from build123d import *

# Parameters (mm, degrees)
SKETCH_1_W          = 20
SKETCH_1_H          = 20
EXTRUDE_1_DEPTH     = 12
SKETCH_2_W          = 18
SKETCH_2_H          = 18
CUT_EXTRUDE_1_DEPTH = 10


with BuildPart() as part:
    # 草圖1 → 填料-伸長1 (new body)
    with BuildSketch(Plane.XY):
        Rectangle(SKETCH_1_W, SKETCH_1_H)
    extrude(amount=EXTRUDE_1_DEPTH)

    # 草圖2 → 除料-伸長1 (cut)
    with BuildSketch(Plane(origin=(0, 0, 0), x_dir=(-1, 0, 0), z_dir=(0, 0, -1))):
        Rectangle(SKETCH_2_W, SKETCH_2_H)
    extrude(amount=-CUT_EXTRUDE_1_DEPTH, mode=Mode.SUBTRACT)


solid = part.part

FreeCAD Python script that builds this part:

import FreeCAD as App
import Part
import Sketcher

V = App.Vector

doc = App.newDocument("Part")
params = doc.addObject("Spreadsheet::Sheet", "Params")
for row, (alias, value) in enumerate([
    ("sketch1_width", "20 mm"),
    ("pad1_length", "12 mm"),
    ("sketch2_width", "18 mm"),
    ("pocket1_length", "10 mm"),
], start=1):
    params.set(f"A{row}", alias)
    params.set(f"B{row}", "=" + value)
    params.setAlias(f"B{row}", alias)

body = doc.addObject("PartDesign::Body", "Body")

# Sketch on XY plane
sketch1 = doc.addObject("Sketcher::SketchObject", "Sketch")
body.addObject(sketch1)
sketch1.AttachmentSupport = (doc.XY_Plane, [""])
sketch1.MapMode = "FlatFace"
sketch1.addGeometry([
    Part.LineSegment(V(-10, 10, 0), V(-10, -10, 0)),
    Part.LineSegment(V(-10, -10, 0), V(10, -10, 0)),
    Part.LineSegment(V(10, -10, 0), V(10, 10, 0)),
    Part.LineSegment(V(10, 10, 0), V(-10, 10, 0)),
], False)
sketch1.addConstraint([
    Sketcher.Constraint("Coincident", 0, 2, 1, 1),
    Sketcher.Constraint("Coincident", 1, 2, 2, 1),
    Sketcher.Constraint("Coincident", 2, 2, 3, 1),
    Sketcher.Constraint("Coincident", 3, 2, 0, 1),
    Sketcher.Constraint("Vertical", 0),
    Sketcher.Constraint("Horizontal", 1),
    Sketcher.Constraint("Vertical", 2),
    Sketcher.Constraint("Horizontal", 3),
    Sketcher.Constraint("Symmetric", 0, 2, 2, 2, -1, 1),
    Sketcher.Constraint("Equal", 3, 0),
    Sketcher.Constraint("DistanceX", 1, 1, 1, 2, 20.0),
])
sketch1.setExpression("Constraints[10]", "Params.sketch1_width")
pad1 = doc.addObject("PartDesign::Pad", "Pad")
body.addObject(pad1)
pad1.Profile = sketch1
pad1.setExpression("Length", "Params.pad1_length")

# Sketch on XY plane
sketch2 = doc.addObject("Sketcher::SketchObject", "Sketch001")
body.addObject(sketch2)
sketch2.AttachmentSupport = (doc.XY_Plane, [""])
sketch2.MapMode = "FlatFace"
sketch2.addGeometry([
    Part.LineSegment(V(9, 9, 0), V(9, -9, 0)),
    Part.LineSegment(V(9, -9, 0), V(-9, -9, 0)),
    Part.LineSegment(V(-9, -9, 0), V(-9, 9, 0)),
    Part.LineSegment(V(-9, 9, 0), V(9, 9, 0)),
], False)
sketch2.addConstraint([
    Sketcher.Constraint("Coincident", 0, 2, 1, 1),
    Sketcher.Constraint("Coincident", 1, 2, 2, 1),
    Sketcher.Constraint("Coincident", 2, 2, 3, 1),
    Sketcher.Constraint("Coincident", 3, 2, 0, 1),
    Sketcher.Constraint("Vertical", 0),
    Sketcher.Constraint("Horizontal", 1),
    Sketcher.Constraint("Vertical", 2),
    Sketcher.Constraint("Horizontal", 3),
    Sketcher.Constraint("Symmetric", 0, 2, 2, 2, -1, 1),
    Sketcher.Constraint("Equal", 3, 0),
    Sketcher.Constraint("DistanceX", 1, 2, 1, 1, 18.0),
])
sketch2.setExpression("Constraints[10]", "Params.sketch2_width")
pocket1 = doc.addObject("PartDesign::Pocket", "Pocket")
body.addObject(pocket1)
pocket1.Profile = sketch2
pocket1.setExpression("Length", "Params.pocket1_length")
pocket1.Reversed = True

doc.recompute()
